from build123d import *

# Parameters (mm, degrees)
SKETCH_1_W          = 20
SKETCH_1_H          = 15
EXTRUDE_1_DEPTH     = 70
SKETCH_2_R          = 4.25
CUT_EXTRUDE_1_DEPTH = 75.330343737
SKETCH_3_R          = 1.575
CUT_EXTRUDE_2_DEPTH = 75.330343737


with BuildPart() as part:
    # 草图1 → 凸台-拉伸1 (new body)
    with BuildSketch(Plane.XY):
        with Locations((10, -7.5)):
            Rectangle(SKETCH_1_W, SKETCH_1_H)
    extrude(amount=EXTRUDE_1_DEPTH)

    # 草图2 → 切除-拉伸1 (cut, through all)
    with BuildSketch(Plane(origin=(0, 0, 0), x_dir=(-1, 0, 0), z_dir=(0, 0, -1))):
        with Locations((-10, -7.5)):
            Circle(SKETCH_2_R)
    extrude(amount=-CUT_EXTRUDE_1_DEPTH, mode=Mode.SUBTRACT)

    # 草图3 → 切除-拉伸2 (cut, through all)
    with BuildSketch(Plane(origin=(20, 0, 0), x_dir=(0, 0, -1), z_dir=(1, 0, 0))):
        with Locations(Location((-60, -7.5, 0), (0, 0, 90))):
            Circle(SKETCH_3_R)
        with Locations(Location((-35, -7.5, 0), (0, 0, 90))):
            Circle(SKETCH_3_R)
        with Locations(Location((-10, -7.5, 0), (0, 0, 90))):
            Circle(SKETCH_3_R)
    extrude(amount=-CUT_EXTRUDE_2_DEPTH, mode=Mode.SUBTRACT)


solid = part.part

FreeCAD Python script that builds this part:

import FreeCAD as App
import Part
import Sketcher
from FreeCAD import Vector
Q = App.Units.Quantity


def add_polygon(sketch, points):
    """Adds a closed chain of lines whose ends are joined by coincident constraints."""
    first, n = sketch.GeometryCount, len(points)
    for a, b in zip(points, points[1:] + points[:1]):
        sketch.addGeometry(Part.LineSegment(App.Vector(*a, 0), App.Vector(*b, 0)), False)
    for i in range(n):
        sketch.addConstraint(Sketcher.Constraint("Coincident", first + i, 2, first + (i + 1) % n, 1))

doc = App.newDocument("Part")
body = doc.addObject("PartDesign::Body", "Body")

# Sketch on XY plane
sketch1 = doc.addObject("Sketcher::SketchObject", "Sketch")
body.addObject(sketch1)
sketch1.AttachmentSupport = (doc.XY_Plane, [""])
sketch1.MapMode = "FlatFace"
add_polygon(sketch1, [(0, 0), (0, -15), (20, -15), (20, 0)])  # lines 0-3
sketch1.addConstraint([
    Sketcher.Constraint("Vertical", 0),
    Sketcher.Constraint("Horizontal", 1),
    Sketcher.Constraint("Vertical", 2),
    Sketcher.Constraint("Horizontal", 3),
    Sketcher.Constraint("Coincident", 3, 2, -1, 1),
    Sketcher.Constraint("DistanceX", 1, 1, 1, 2, Q("20 mm")),
    Sketcher.Constraint("DistanceY", 0, 2, 0, 1, Q("15 mm")),
])
pad1 = doc.addObject("PartDesign::Pad", "Pad")
body.addObject(pad1)
pad1.Profile = sketch1
pad1.Length = 70

# Sketch on XY plane
sketch2 = doc.addObject("Sketcher::SketchObject", "Sketch001")
body.addObject(sketch2)
sketch2.AttachmentSupport = (doc.XY_Plane, [""])
sketch2.MapMode = "FlatFace"
sketch2.addGeometry(Part.Circle(Vector(10, -7.5, 0), Vector(0, 0, 1), 4.2), False)
sketch2.addConstraint([
    Sketcher.Constraint("Diameter", 0, Q("8.5 mm")),
    Sketcher.Constraint("DistanceX", -1, 1, 0, 3, Q("10 mm")),
    Sketcher.Constraint("DistanceY", 0, 3, -1, 1, Q("7.5 mm")),
])
pocket1 = doc.addObject("PartDesign::Pocket", "Pocket")
body.addObject(pocket1)
pocket1.Profile = sketch2
pocket1.Type = "ThroughAll"
pocket1.Reversed = True

# Sketch on YZ plane
sketch3 = doc.addObject("Sketcher::SketchObject", "Sketch002")
body.addObject(sketch3)
sketch3.AttachmentSupport = (doc.YZ_Plane, [""])
sketch3.MapMode = "FlatFace"
sketch3.AttachmentOffset = App.Placement(Vector(0, 0, 20), App.Rotation())
sketch3.addGeometry([
    Part.Circle(Vector(-7.5, 60, 0), Vector(0, 0, 1), 1.6),
    Part.Circle(Vector(-7.5, 35, 0), Vector(0, 0, 1), 1.6),
    Part.Circle(Vector(-7.5, 10, 0), Vector(0, 0, 1), 1.6),
], False)
sketch3.addConstraint([
    Sketcher.Constraint("Equal", 0, 1),
    Sketcher.Constraint("Equal", 1, 2),
    Sketcher.Constraint("Vertical", 0, 3, 1, 3),
    Sketcher.Constraint("Vertical", 1, 3, 2, 3),
    Sketcher.Constraint("Diameter", 0, Q("3.15 mm")),
    Sketcher.Constraint("DistanceY", -1, 1, 0, 3, Q("60 mm")),
    Sketcher.Constraint("DistanceY", -1, 1, 1, 3, Q("35 mm")),
    Sketcher.Constraint("DistanceY", -1, 1, 2, 3, Q("10 mm")),
    Sketcher.Constraint("DistanceX", 0, 3, -1, 1, Q("7.5 mm")),
])
pocket2 = doc.addObject("PartDesign::Pocket", "Pocket001")
body.addObject(pocket2)
pocket2.Profile = sketch3
pocket2.Type = "ThroughAll"

doc.recompute()
